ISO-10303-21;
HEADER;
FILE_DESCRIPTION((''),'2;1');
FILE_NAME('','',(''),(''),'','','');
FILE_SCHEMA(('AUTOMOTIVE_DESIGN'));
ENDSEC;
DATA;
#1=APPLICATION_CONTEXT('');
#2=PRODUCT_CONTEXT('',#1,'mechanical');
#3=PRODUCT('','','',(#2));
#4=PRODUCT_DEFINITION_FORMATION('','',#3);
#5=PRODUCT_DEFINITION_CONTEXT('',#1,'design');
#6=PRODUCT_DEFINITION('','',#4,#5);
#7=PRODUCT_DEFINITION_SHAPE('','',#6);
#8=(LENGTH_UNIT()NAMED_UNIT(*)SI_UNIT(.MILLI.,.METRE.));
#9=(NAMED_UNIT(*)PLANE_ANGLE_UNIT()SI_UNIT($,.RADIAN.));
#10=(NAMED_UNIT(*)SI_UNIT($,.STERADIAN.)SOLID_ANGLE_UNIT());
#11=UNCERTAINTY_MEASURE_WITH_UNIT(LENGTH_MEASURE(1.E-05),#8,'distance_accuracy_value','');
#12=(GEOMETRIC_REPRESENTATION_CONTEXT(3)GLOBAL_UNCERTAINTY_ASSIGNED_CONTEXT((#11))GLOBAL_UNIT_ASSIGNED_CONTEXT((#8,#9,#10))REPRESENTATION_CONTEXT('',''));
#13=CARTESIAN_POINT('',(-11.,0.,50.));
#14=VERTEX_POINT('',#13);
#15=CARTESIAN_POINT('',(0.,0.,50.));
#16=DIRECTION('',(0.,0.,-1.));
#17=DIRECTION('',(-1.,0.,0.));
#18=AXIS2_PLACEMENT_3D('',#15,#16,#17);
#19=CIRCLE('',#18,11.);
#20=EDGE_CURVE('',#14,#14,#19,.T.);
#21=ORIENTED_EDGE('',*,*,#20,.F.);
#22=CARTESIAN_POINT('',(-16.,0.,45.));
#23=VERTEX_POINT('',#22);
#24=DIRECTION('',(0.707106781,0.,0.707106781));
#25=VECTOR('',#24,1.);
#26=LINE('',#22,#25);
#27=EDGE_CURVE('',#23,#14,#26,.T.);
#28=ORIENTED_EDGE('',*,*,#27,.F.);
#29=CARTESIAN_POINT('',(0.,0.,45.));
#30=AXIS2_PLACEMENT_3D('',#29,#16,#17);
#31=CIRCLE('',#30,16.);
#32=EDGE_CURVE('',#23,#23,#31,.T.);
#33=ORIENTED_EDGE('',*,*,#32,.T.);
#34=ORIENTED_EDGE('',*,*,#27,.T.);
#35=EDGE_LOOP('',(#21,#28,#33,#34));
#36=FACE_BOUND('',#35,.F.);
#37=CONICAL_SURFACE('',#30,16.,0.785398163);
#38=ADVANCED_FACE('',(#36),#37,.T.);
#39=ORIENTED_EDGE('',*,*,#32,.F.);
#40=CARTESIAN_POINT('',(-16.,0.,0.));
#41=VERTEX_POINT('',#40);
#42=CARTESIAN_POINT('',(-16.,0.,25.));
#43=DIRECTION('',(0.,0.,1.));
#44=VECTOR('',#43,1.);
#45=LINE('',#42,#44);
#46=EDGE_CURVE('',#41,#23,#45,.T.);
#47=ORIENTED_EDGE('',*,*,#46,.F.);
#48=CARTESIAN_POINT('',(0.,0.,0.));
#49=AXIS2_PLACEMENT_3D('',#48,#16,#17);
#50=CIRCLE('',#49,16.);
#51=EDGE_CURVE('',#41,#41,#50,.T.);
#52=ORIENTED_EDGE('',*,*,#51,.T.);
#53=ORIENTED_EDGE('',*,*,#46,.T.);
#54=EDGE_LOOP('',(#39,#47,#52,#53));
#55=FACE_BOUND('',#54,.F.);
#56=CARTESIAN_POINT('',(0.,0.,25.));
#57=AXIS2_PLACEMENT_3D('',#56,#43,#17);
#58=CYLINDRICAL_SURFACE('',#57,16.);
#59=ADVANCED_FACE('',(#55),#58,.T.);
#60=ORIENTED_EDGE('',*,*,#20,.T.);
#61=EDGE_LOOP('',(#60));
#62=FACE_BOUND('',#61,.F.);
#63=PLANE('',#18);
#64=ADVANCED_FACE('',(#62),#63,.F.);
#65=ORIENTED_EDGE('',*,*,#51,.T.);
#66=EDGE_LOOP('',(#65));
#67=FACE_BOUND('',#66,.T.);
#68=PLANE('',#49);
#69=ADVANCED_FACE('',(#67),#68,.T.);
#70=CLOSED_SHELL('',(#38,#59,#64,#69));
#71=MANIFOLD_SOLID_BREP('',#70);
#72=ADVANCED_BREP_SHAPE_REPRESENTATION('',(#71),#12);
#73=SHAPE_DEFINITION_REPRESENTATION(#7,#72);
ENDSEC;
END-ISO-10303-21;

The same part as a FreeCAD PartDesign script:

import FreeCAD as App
import Part
import Sketcher

V = App.Vector
Q = App.Units.Quantity


def edges_at(feature, points):
    """Names of the edges that pass closest to the given points."""
    edges = feature.Shape.Edges
    near = lambda p: min(range(len(edges)), key=lambda i: edges[i].distToShape(Part.Vertex(*p))[0])
    return sorted({f"Edge{near(p) + 1}" for p in points})

doc = App.newDocument("Part")
params = doc.addObject("Spreadsheet::Sheet", "Params")
for row, (alias, value) in enumerate([
    ("sketch1_width", "16 mm"),
    ("sketch1_height", "50 mm"),
    ("revolution_angle", "360 deg"),
    ("chamfer_size", "5 mm"),
], start=1):
    params.set(f"A{row}", alias)
    params.set(f"B{row}", "=" + value)
    params.setAlias(f"B{row}", alias)

body = doc.addObject("PartDesign::Body", "Body")

sketch1 = doc.addObject("Sketcher::SketchObject", "Sketch")
body.addObject(sketch1)
sketch1.AttachmentSupport = (doc.XZ_Plane, [""])
sketch1.MapMode = "FlatFace"
sketch1.addGeometry(Part.LineSegment(V(-16, 50, 0), V(-16, 0, 0)), False)
sketch1.addGeometry(Part.LineSegment(V(-16, 0, 0), V(0, 0, 0)), False)
sketch1.addGeometry(Part.LineSegment(V(0, 0, 0), V(0, 50, 0)), False)
sketch1.addGeometry(Part.LineSegment(V(0, 50, 0), V(-16, 50, 0)), False)
sketch1.addConstraint(Sketcher.Constraint("Coincident", 0, 2, 1, 1))
sketch1.addConstraint(Sketcher.Constraint("Coincident", 1, 2, 2, 1))
sketch1.addConstraint(Sketcher.Constraint("Coincident", 2, 2, 3, 1))
sketch1.addConstraint(Sketcher.Constraint("Coincident", 3, 2, 0, 1))
sketch1.addConstraint(Sketcher.Constraint("Vertical", 0))
sketch1.addConstraint(Sketcher.Constraint("Horizontal", 1))
sketch1.addConstraint(Sketcher.Constraint("Vertical", 2))
sketch1.addConstraint(Sketcher.Constraint("Horizontal", 3))
sketch1.addConstraint(Sketcher.Constraint("Coincident", 1, 2, -1, 1))
sketch1.addConstraint(Sketcher.Constraint("DistanceX", 1, 1, 1, 2, Q("16 mm")))
sketch1.addConstraint(Sketcher.Constraint("DistanceY", 0, 2, 0, 1, Q("50 mm")))
sketch1.setExpression("Constraints[9]", "Params.sketch1_width")
sketch1.setExpression("Constraints[10]", "Params.sketch1_height")
revolution = doc.addObject("PartDesign::Revolution", "Revolution")
body.addObject(revolution)
revolution.Profile = sketch1
revolution.ReferenceAxis = (sketch1, ["V_Axis"])
revolution.setExpression("Angle", "Params.revolution_angle")
doc.recompute()

chamfer = doc.addObject("PartDesign::Chamfer", "Chamfer")
body.addObject(chamfer)
chamfer.Base = (revolution, edges_at(revolution, [(16, 0, 50)]))
chamfer.setExpression("Size", "Params.chamfer_size")

doc.recompute()
